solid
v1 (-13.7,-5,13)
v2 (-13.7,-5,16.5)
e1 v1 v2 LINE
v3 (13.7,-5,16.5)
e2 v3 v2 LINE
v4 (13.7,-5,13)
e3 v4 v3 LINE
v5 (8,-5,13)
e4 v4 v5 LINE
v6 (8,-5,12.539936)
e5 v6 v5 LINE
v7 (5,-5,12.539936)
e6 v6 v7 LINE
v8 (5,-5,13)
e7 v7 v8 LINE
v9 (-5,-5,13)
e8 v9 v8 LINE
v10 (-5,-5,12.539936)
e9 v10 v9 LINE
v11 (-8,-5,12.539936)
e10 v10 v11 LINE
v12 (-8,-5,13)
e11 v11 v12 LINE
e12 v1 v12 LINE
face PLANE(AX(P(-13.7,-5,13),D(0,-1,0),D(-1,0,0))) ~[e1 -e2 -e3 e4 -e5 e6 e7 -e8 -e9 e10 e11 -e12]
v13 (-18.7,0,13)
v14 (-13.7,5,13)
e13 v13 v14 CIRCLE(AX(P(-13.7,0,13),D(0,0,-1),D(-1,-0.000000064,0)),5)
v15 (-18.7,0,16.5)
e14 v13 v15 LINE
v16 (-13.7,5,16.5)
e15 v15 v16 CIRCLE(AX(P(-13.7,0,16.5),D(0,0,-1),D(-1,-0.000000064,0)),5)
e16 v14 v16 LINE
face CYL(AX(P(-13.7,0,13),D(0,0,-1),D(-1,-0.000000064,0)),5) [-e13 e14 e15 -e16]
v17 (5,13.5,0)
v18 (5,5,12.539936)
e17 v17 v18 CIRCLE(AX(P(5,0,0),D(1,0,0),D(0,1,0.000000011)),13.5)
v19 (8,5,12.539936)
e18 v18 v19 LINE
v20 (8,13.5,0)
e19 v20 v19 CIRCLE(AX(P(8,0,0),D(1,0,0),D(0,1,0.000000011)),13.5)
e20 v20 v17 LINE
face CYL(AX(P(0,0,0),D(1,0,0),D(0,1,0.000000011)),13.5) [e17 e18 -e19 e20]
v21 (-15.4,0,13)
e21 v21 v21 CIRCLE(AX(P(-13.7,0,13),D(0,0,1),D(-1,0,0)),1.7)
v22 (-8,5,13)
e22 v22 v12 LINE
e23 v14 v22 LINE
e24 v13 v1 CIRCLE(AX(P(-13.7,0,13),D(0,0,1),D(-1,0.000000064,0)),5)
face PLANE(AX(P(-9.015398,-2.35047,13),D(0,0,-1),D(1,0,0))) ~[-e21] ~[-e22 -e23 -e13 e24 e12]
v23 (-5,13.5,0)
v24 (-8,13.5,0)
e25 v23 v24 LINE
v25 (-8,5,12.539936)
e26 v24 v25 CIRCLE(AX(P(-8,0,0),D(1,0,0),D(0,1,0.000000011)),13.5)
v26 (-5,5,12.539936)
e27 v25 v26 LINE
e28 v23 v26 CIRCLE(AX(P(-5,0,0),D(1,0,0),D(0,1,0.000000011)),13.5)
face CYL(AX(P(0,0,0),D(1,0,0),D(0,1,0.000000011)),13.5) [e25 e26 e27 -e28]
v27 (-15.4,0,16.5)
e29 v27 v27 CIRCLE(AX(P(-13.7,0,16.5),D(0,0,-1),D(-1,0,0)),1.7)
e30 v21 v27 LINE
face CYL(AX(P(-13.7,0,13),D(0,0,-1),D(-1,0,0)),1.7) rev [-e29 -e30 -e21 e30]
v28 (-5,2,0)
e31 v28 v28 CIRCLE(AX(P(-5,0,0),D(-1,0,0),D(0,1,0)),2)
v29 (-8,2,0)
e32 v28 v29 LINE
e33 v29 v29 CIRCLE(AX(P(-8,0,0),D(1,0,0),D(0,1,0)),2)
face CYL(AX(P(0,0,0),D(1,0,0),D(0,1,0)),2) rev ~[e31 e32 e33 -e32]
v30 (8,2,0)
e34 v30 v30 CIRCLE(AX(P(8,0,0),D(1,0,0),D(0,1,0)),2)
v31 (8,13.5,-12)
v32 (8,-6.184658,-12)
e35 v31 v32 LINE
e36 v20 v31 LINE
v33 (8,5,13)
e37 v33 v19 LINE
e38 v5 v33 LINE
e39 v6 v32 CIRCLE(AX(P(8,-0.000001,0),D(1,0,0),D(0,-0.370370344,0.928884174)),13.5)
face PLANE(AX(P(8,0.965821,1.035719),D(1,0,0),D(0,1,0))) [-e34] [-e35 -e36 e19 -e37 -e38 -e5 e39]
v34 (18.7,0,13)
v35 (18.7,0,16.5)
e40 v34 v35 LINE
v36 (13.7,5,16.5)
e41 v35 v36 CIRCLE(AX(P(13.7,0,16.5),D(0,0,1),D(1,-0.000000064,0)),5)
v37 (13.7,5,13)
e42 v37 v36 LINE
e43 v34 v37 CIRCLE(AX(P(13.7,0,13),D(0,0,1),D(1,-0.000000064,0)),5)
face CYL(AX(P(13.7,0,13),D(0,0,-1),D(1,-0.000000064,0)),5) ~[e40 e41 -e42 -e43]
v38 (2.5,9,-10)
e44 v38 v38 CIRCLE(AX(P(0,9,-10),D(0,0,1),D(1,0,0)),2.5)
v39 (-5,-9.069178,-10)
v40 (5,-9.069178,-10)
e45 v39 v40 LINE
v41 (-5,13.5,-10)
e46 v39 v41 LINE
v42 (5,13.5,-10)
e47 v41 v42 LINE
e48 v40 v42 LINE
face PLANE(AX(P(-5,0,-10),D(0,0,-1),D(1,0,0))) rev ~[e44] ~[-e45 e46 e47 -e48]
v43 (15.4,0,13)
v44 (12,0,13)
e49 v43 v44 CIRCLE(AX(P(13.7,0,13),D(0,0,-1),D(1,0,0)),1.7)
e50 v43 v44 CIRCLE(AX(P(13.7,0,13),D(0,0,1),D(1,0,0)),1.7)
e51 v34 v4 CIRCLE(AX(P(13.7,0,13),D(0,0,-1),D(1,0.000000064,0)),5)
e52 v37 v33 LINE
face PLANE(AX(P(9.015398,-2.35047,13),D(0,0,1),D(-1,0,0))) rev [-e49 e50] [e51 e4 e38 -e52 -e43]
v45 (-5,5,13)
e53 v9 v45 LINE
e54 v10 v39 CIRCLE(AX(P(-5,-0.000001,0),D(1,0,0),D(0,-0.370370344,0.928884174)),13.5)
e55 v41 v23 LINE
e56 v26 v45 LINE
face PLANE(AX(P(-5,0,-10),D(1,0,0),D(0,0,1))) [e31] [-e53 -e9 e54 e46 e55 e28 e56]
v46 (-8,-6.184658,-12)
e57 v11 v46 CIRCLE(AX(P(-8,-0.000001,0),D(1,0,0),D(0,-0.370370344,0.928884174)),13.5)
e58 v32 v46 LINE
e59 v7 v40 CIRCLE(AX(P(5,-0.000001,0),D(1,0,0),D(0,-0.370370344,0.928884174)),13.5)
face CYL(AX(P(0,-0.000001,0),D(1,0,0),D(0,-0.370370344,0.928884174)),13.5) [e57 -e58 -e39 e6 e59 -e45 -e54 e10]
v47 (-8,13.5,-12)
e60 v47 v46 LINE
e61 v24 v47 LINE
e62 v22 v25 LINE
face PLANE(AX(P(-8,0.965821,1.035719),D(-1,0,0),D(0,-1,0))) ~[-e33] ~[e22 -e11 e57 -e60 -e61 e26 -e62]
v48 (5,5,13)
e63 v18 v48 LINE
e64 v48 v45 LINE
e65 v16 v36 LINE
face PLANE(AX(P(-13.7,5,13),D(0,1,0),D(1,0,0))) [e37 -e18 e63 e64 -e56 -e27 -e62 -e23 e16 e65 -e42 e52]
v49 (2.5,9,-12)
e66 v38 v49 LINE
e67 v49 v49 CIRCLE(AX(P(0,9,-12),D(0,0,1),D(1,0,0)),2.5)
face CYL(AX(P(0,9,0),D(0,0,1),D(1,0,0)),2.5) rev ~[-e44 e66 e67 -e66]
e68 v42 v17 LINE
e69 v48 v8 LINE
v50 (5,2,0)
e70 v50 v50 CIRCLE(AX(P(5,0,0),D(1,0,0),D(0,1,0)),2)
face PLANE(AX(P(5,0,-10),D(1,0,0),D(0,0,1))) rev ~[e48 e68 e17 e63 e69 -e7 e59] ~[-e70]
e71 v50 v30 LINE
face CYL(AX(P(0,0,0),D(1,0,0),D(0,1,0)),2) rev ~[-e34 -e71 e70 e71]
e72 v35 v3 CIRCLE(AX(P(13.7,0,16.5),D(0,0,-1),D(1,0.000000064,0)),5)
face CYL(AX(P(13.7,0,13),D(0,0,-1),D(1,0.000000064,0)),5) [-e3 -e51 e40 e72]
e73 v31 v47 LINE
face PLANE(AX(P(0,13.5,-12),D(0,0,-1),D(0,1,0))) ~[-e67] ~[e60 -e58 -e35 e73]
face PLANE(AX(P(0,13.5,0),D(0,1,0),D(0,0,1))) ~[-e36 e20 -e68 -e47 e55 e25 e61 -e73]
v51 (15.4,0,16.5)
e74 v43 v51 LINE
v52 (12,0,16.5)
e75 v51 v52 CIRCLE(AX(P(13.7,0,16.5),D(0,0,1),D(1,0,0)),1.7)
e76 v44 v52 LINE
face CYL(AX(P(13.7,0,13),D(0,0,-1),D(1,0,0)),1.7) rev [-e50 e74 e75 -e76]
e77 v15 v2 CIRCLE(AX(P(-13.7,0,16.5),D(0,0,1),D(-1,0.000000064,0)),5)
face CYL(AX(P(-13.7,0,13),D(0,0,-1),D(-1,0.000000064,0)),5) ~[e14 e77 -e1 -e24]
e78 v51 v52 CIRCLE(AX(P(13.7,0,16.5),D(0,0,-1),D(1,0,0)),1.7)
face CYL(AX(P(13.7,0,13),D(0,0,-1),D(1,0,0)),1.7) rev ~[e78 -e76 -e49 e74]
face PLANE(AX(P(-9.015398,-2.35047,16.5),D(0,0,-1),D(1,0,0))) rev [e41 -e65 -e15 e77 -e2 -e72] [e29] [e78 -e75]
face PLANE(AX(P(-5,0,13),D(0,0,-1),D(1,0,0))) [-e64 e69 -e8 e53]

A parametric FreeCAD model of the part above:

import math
import FreeCAD as App
import Part
import Sketcher

doc = App.newDocument("Part")
body = doc.addObject("PartDesign::Body", "Body")

# Sketch on YZ plane
sketch1 = doc.addObject("Sketcher::SketchObject", "Sketch")
body.addObject(sketch1)
sketch1.AttachmentSupport = (doc.YZ_Plane, [""])
sketch1.MapMode = "FlatFace"
sketch1.addGeometry([
    Part.ArcOfCircle(Part.Circle(App.Vector(0, 0, 0), App.Vector(0, 0, 1), 13.5), math.radians(0), math.radians(68)),  # 0
    Part.LineSegment(App.Vector(5, 12.5, 0), App.Vector(5, 16.5, 0)),  # 1
    Part.LineSegment(App.Vector(5, 16.5, 0), App.Vector(-5, 16.5, 0)),  # 2
    Part.LineSegment(App.Vector(-5, 16.5, 0), App.Vector(-5, 12.5, 0)),  # 3
    Part.ArcOfCircle(Part.Circle(App.Vector(0, 0, 0), App.Vector(0, 0, 1), 13.5), math.radians(112), math.radians(243)),  # 4
    Part.LineSegment(App.Vector(-6.2, -12, 0), App.Vector(13.5, -12, 0)),  # 5
    Part.LineSegment(App.Vector(13.5, -12, 0), App.Vector(13.5, 0, 0)),  # 6
    Part.Circle(App.Vector(0, 0, 0), App.Vector(0, 0, 1), 2),  # 7
], False)
sketch1.addConstraint([
    Sketcher.Constraint("Coincident", 0, 2, 1, 1),
    Sketcher.Constraint("Coincident", 1, 2, 2, 1),
    Sketcher.Constraint("Coincident", 2, 2, 3, 1),
    Sketcher.Constraint("Coincident", 3, 2, 4, 1),
    Sketcher.Constraint("Coincident", 4, 2, 5, 1),
    Sketcher.Constraint("Coincident", 5, 2, 6, 1),
    Sketcher.Constraint("Tangent", 6, 2, 0, 1),
    Sketcher.Constraint("Vertical", 1),
    Sketcher.Constraint("Horizontal", 2),
    Sketcher.Constraint("Vertical", 3),
    Sketcher.Constraint("Horizontal", 5),
    Sketcher.Constraint("Vertical", 6),
    Sketcher.Constraint("Coincident", 0, 3, -1, 1),
    Sketcher.Constraint("Coincident", 4, 3, -1, 1),
    Sketcher.Constraint("Coincident", 7, 3, -1, 1),
    Sketcher.Constraint("Equal", 0, 4),
    Sketcher.Constraint("Horizontal", 0, 2, 3, 2),
    Sketcher.Constraint("Diameter", 7, 4.0),
    Sketcher.Constraint("Radius", 0, 13.5),
    Sketcher.Constraint("DistanceX", 2, 2, 2, 1, 10.0),
    Sketcher.Constraint("DistanceY", 6, 1, 6, 2, 12.0),
    Sketcher.Constraint("DistanceY", -1, 1, 1, 2, 16.5),
])
pad1 = doc.addObject("PartDesign::Pad", "Pad")
body.addObject(pad1)
pad1.Profile = sketch1
pad1.Length = 8
doc.recompute()

mirrored = doc.addObject("PartDesign::Mirrored", "Mirrored")
body.addObject(mirrored)
mirrored.Originals = [pad1]
mirrored.MirrorPlane = (doc.YZ_Plane, [""])
body.Tip = mirrored

# Sketch on XZ plane
sketch2 = doc.addObject("Sketcher::SketchObject", "Sketch001")
body.addObject(sketch2)
sketch2.AttachmentSupport = (doc.XZ_Plane, [""])
sketch2.MapMode = "FlatFace"
sketch2.addGeometry([
    Part.LineSegment(App.Vector(-5, 13, 0), App.Vector(-5, -10, 0)),
    Part.LineSegment(App.Vector(-5, -10, 0), App.Vector(5, -10, 0)),
    Part.LineSegment(App.Vector(5, -10, 0), App.Vector(5, 13, 0)),
    Part.LineSegment(App.Vector(5, 13, 0), App.Vector(-5, 13, 0)),
], False)
sketch2.addConstraint([
    Sketcher.Constraint("Coincident", 0, 2, 1, 1),
    Sketcher.Constraint("Coincident", 1, 2, 2, 1),
    Sketcher.Constraint("Coincident", 2, 2, 3, 1),
    Sketcher.Constraint("Coincident", 3, 2, 0, 1),
    Sketcher.Constraint("Vertical", 0),
    Sketcher.Constraint("Horizontal", 1),
    Sketcher.Constraint("Vertical", 2),
    Sketcher.Constraint("Horizontal", 3),
    Sketcher.Constraint("DistanceX", 1, 1, 1, 2, 10.0),
    Sketcher.Constraint("DistanceY", 0, 2, 0, 1, 23.0),
    Sketcher.Constraint("DistanceX", 0, 2, -1, 1, 5.0),
    Sketcher.Constraint("DistanceY", 0, 2, -1, 1, 10.0),
])
pocket1 = doc.addObject("PartDesign::Pocket", "Pocket")
body.addObject(pocket1)
pocket1.Profile = sketch2
pocket1.Type = "ThroughAll"
pocket1.Midplane = True

# Sketch on XY plane
sketch3 = doc.addObject("Sketcher::SketchObject", "Sketch002")
body.addObject(sketch3)
sketch3.AttachmentSupport = (doc.XY_Plane, [""])
sketch3.MapMode = "FlatFace"
sketch3.addGeometry(Part.Circle(App.Vector(0, 9, 0), App.Vector(0, 0, 1), 2.5), False)
sketch3.addConstraint([
    Sketcher.Constraint("PointOnObject", 0, 3, -2),
    Sketcher.Constraint("Diameter", 0, 5.0),
    Sketcher.Constraint("DistanceY", -1, 1, 0, 3, 9.0),
])
pocket2 = doc.addObject("PartDesign::Pocket", "Pocket001")
body.addObject(pocket2)
pocket2.Profile = sketch3
pocket2.Type = "ThroughAll"

# Sketch on XY plane
sketch4 = doc.addObject("Sketcher::SketchObject", "Sketch003")
body.addObject(sketch4)
sketch4.AttachmentSupport = (doc.XY_Plane, [""])
sketch4.MapMode = "FlatFace"
sketch4.AttachmentOffset = App.Placement(App.Vector(0, 0, 13), App.Rotation())
sketch4.addGeometry([
    Part.LineSegment(App.Vector(13.7, 5, 0), App.Vector(0, 5, 0)),  # 0
    Part.LineSegment(App.Vector(0, 5, 0), App.Vector(0, 0, 0)),  # 1
    Part.LineSegment(App.Vector(0, 0, 0), App.Vector(12, 0, 0)),  # 2
    Part.ArcOfCircle(Part.Circle(App.Vector(13.7, 0, 0), App.Vector(0, 0, 1), 1.7), math.radians(0), math.radians(180)),  # 3
    Part.LineSegment(App.Vector(15.4, 0, 0), App.Vector(18.7, 0, 0)),  # 4
    Part.ArcOfCircle(Part.Circle(App.Vector(13.7, 0, 0), App.Vector(0, 0, 1), 5), math.radians(0), math.radians(90)),  # 5
], False)
sketch4.addConstraint([
    Sketcher.Constraint("Coincident", 0, 2, 1, 1),
    Sketcher.Constraint("Coincident", 1, 2, 2, 1),
    Sketcher.Constraint("Coincident", 2, 2, 3, 2),
    Sketcher.Constraint("Coincident", 3, 1, 4, 1),
    Sketcher.Constraint("Coincident", 4, 2, 5, 1),
    Sketcher.Constraint("Tangent", 5, 2, 0, 1),
    Sketcher.Constraint("Horizontal", 0),
    Sketcher.Constraint("Vertical", 1),
    Sketcher.Constraint("Horizontal", 2),
    Sketcher.Constraint("Horizontal", 4),
    Sketcher.Constraint("Coincident", 1, 2, -1, 1),
    Sketcher.Constraint("Coincident", 5, 3, 3, 3),
    Sketcher.Constraint("PointOnObject", 3, 3, -1),
    Sketcher.Constraint("PointOnObject", 3, 1, -1),
    Sketcher.Constraint("Radius", 5, 5.0),
    Sketcher.Constraint("Radius", 3, 1.7),
    Sketcher.Constraint("DistanceX", 2, 1, 2, 2, 12.0),
])
pad2 = doc.addObject("PartDesign::Pad", "Pad001")
body.addObject(pad2)
pad2.Profile = sketch4
pad2.Length = 3.5

# Sketch on XY plane
sketch5 = doc.addObject("Sketcher::SketchObject", "Sketch004")
body.addObject(sketch5)
sketch5.AttachmentSupport = (doc.XY_Plane, [""])
sketch5.MapMode = "FlatFace"
sketch5.AttachmentOffset = App.Placement(App.Vector(0, 0, 13), App.Rotation())
sketch5.addGeometry([
    Part.LineSegment(App.Vector(-13.7, 5, 0), App.Vector(0, 5, 0)),  # 0
    Part.LineSegment(App.Vector(0, 5, 0), App.Vector(0, 0, 0)),  # 1
    Part.LineSegment(App.Vector(0, 0, 0), App.Vector(-12, 0, 0)),  # 2
    Part.ArcOfCircle(Part.Circle(App.Vector(-13.7, 0, 0), App.Vector(0, 0, 1), 1.7), math.radians(0), math.radians(180)),  # 3
    Part.LineSegment(App.Vector(-15.4, 0, 0), App.Vector(-18.7, 0, 0)),  # 4
    Part.ArcOfCircle(Part.Circle(App.Vector(-13.7, 0, 0), App.Vector(0, 0, 1), 5), math.radians(90), math.radians(180)),  # 5
], False)
sketch5.addConstraint([
    Sketcher.Constraint("Coincident", 0, 2, 1, 1),
    Sketcher.Constraint("Coincident", 1, 2, 2, 1),
    Sketcher.Constraint("Coincident", 2, 2, 3, 1),
    Sketcher.Constraint("Coincident", 3, 2, 4, 1),
    Sketcher.Constraint("Coincident", 4, 2, 5, 2),
    Sketcher.Constraint("Tangent", 5, 1, 0, 1),
    Sketcher.Constraint("Horizontal", 0),
    Sketcher.Constraint("Vertical", 1),
    Sketcher.Constraint("Horizontal", 2),
    Sketcher.Constraint("Horizontal", 4),
    Sketcher.Constraint("Coincident", 1, 2, -1, 1),
    Sketcher.Constraint("Coincident", 5, 3, 3, 3),
    Sketcher.Constraint("PointOnObject", 3, 3, -1),
    Sketcher.Constraint("PointOnObject", 3, 2, -1),
    Sketcher.Constraint("Radius", 5, 5.0),
    Sketcher.Constraint("Radius", 3, 1.7),
    Sketcher.Constraint("DistanceX", 2, 2, 2, 1, 12.0),
])
pad3 = doc.addObject("PartDesign::Pad", "Pad002")
body.addObject(pad3)
pad3.Profile = sketch5
pad3.Length = 3.5
doc.recompute()

mirrored2 = doc.addObject("PartDesign::Mirrored", "Mirrored001")
body.addObject(mirrored2)
mirrored2.Originals = [pad2, pad3]
mirrored2.MirrorPlane = (doc.XZ_Plane, [""])
body.Tip = mirrored2

doc.recompute()
